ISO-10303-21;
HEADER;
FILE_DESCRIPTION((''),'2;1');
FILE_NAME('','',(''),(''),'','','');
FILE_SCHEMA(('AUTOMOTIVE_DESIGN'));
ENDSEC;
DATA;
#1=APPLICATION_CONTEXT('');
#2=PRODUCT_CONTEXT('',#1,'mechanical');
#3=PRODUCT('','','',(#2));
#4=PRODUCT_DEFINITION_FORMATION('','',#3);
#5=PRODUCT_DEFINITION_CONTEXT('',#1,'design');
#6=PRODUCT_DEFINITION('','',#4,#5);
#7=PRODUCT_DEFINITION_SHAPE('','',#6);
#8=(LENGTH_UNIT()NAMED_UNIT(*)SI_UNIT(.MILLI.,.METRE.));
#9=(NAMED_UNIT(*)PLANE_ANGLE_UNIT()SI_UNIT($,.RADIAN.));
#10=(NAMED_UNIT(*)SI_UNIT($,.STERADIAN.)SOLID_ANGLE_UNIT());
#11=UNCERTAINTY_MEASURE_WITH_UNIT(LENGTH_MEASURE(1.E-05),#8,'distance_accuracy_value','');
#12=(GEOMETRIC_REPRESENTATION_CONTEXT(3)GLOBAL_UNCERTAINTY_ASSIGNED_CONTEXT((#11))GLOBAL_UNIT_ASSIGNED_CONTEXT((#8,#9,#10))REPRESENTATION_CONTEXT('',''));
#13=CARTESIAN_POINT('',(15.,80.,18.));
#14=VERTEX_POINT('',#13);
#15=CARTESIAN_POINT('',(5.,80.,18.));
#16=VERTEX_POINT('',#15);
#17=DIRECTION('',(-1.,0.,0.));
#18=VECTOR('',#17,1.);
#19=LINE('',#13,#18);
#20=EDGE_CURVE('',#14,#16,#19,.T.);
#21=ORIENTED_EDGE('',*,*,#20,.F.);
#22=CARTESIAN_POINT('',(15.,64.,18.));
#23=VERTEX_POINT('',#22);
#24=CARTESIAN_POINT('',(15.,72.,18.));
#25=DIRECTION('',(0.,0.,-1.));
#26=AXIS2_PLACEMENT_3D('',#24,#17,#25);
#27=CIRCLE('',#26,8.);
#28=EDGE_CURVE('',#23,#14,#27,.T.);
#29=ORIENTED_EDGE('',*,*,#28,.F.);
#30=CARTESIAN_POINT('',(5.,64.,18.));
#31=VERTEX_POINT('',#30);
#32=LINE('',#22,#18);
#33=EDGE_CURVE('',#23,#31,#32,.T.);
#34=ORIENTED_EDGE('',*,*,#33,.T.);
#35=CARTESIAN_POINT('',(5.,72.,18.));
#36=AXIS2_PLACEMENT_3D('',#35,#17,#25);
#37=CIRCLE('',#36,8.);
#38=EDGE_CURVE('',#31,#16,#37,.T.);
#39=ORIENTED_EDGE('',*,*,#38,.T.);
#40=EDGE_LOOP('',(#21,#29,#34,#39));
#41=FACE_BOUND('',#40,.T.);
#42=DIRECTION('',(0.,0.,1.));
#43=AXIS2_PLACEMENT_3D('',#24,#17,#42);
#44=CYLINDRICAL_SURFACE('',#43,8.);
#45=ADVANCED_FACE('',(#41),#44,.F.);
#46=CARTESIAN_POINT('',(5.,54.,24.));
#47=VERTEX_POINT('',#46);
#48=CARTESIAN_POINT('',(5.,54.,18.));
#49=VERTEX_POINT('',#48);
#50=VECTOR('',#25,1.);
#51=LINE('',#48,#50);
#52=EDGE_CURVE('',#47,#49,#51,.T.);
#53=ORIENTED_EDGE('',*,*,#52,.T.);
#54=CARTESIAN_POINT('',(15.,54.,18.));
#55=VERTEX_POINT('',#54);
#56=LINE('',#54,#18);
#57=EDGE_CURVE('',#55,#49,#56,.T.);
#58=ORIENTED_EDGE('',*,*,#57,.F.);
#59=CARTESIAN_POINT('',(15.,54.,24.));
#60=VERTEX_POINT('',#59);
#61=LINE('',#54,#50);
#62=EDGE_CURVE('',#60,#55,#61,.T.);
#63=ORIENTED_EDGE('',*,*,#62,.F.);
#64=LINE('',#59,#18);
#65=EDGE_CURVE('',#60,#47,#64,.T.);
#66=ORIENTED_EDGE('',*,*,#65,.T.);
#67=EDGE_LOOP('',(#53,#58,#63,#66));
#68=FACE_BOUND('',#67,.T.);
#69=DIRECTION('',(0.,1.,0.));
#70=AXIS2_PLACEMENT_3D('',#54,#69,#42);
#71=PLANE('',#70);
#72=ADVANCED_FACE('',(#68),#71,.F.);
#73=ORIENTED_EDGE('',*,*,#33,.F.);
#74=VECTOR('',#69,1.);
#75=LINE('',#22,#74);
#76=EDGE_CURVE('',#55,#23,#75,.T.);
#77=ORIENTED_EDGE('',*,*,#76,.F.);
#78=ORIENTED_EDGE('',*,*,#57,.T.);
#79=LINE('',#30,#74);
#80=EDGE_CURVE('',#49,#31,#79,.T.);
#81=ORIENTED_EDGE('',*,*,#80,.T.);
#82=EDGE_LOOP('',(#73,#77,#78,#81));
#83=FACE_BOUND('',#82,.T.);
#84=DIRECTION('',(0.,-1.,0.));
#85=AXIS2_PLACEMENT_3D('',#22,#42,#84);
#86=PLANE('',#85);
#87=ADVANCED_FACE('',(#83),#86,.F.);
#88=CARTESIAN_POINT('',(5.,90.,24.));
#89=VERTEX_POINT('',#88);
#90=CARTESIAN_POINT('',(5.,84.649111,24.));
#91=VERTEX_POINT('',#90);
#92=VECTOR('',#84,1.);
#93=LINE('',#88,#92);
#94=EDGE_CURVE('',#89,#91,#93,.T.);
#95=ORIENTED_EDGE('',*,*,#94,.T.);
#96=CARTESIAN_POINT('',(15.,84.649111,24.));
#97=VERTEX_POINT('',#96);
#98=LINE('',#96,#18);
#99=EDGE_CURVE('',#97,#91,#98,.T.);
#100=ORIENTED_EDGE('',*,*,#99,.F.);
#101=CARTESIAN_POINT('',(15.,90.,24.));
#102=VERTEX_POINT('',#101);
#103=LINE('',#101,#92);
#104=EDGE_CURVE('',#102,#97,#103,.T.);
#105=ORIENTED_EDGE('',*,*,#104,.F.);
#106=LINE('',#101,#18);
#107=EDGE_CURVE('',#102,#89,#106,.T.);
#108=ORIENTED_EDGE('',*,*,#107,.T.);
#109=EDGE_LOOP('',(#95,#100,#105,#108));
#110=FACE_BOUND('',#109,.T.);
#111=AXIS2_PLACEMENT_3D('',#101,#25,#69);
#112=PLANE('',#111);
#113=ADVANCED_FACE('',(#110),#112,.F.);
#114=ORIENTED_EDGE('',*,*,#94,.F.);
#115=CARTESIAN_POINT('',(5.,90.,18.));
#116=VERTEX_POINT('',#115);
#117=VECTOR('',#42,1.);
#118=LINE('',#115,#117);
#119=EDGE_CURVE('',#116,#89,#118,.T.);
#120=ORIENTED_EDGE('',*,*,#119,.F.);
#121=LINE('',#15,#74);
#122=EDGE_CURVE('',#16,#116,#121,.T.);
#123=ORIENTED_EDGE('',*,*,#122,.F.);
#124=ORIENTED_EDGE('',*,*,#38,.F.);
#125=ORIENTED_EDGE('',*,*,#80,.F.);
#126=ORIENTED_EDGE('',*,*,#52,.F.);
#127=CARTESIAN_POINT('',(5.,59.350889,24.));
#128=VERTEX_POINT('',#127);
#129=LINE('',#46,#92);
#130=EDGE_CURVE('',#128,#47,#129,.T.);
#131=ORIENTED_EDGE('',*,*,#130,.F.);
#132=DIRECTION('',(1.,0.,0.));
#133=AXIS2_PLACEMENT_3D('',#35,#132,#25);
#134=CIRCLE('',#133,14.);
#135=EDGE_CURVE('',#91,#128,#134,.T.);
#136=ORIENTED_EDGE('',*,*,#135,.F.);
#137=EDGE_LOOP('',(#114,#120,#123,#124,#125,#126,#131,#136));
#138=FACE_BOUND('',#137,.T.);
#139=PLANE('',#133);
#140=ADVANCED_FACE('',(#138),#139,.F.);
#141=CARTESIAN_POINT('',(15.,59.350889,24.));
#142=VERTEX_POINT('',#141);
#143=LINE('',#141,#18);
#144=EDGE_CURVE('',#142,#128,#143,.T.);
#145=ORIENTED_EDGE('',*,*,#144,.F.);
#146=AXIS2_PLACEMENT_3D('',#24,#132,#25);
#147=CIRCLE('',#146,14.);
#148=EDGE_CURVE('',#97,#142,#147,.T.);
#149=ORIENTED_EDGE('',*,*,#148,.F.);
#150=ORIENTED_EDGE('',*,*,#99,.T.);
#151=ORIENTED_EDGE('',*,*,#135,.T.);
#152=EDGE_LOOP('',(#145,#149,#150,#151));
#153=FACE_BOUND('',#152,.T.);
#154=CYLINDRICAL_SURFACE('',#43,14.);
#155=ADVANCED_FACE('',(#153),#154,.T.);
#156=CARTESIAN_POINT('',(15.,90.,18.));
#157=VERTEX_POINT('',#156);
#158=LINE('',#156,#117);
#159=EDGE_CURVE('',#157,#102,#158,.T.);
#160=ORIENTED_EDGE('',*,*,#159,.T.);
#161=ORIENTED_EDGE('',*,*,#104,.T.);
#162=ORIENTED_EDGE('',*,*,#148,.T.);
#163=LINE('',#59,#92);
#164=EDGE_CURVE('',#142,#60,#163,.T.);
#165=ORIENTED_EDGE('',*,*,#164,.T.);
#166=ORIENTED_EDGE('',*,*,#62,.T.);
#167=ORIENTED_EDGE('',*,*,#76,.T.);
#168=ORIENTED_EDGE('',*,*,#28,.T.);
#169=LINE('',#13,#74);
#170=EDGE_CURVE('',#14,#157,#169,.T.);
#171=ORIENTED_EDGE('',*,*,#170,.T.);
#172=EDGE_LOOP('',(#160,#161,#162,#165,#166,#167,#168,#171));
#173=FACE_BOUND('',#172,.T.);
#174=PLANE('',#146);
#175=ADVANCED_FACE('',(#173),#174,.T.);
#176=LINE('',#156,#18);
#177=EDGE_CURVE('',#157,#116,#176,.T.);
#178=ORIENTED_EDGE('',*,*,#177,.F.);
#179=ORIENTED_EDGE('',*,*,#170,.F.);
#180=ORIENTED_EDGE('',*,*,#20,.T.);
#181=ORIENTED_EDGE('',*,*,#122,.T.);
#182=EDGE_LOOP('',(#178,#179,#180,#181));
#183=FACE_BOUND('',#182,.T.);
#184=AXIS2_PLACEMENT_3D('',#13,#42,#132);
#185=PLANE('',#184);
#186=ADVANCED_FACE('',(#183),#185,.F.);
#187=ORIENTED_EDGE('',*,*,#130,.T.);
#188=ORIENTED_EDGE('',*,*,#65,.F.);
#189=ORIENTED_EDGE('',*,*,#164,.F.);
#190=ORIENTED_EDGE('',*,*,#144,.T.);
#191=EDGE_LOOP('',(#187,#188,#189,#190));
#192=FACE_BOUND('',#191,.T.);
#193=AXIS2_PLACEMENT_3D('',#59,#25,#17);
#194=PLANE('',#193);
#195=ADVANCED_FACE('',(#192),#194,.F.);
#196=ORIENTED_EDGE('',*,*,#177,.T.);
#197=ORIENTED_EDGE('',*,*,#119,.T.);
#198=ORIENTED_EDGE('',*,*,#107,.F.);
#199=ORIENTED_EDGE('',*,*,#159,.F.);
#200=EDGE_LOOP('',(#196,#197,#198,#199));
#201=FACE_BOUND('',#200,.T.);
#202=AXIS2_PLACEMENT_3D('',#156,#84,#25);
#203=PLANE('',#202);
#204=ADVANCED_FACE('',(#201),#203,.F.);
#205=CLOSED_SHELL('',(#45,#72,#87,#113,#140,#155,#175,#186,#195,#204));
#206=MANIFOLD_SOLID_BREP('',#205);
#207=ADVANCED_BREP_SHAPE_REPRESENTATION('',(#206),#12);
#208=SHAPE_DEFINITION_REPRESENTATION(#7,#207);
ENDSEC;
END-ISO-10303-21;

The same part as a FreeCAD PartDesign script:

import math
import FreeCAD as App
import Part
import Sketcher

V = App.Vector

doc = App.newDocument("Part")
body = doc.addObject("PartDesign::Body", "Body")

sketch1 = doc.addObject("Sketcher::SketchObject", "Sketch")
body.addObject(sketch1)
sketch1.AttachmentSupport = (doc.YZ_Plane, [""])
sketch1.MapMode = "FlatFace"
sketch1.AttachmentOffset = App.Placement(V(0, 0, 10), App.Rotation())
sketch1.addGeometry(Part.LineSegment(V(80, 18, 0), V(90, 18, 0)), False)
sketch1.addGeometry(Part.LineSegment(V(90, 18, 0), V(90, 24, 0)), False)
sketch1.addGeometry(Part.LineSegment(V(90, 24, 0), V(85, 24, 0)), False)
sketch1.addGeometry(Part.ArcOfCircle(Part.Circle(V(72, 18, 0), V(0, 0, 1), 14), math.radians(25), math.radians(155)), False)
sketch1.addGeometry(Part.LineSegment(V(59, 24, 0), V(54, 24, 0)), False)
sketch1.addGeometry(Part.LineSegment(V(54, 24, 0), V(54, 18, 0)), False)
sketch1.addGeometry(Part.LineSegment(V(54, 18, 0), V(64, 18, 0)), False)
sketch1.addGeometry(Part.ArcOfCircle(Part.Circle(V(72, 18, 0), V(0, 0, 1), 8), math.radians(0), math.radians(180)), False)
sketch1.addConstraint(Sketcher.Constraint("Coincident", 0, 2, 1, 1))
sketch1.addConstraint(Sketcher.Constraint("Coincident", 1, 2, 2, 1))
sketch1.addConstraint(Sketcher.Constraint("Coincident", 2, 2, 3, 1))
sketch1.addConstraint(Sketcher.Constraint("Coincident", 3, 2, 4, 1))
sketch1.addConstraint(Sketcher.Constraint("Coincident", 4, 2, 5, 1))
sketch1.addConstraint(Sketcher.Constraint("Coincident", 5, 2, 6, 1))
sketch1.addConstraint(Sketcher.Constraint("Coincident", 6, 2, 7, 2))
sketch1.addConstraint(Sketcher.Constraint("Coincident", 7, 1, 0, 1))
sketch1.addConstraint(Sketcher.Constraint("Horizontal", 0))
sketch1.addConstraint(Sketcher.Constraint("Vertical", 1))
sketch1.addConstraint(Sketcher.Constraint("Horizontal", 2))
sketch1.addConstraint(Sketcher.Constraint("Horizontal", 4))
sketch1.addConstraint(Sketcher.Constraint("Vertical", 5))
sketch1.addConstraint(Sketcher.Constraint("Horizontal", 6))
sketch1.addConstraint(Sketcher.Constraint("Coincident", 7, 3, 3, 3))
sketch1.addConstraint(Sketcher.Constraint("Horizontal", 7, 3, 0, 2))
sketch1.addConstraint(Sketcher.Constraint("Horizontal", 2, 2, 3, 2))
sketch1.addConstraint(Sketcher.Constraint("Horizontal", 0, 2, 5, 2))
sketch1.addConstraint(Sketcher.Constraint("Equal", 2, 4))
sketch1.addConstraint(Sketcher.Constraint("Radius", 3, 14.0))
sketch1.addConstraint(Sketcher.Constraint("Radius", 7, 8.0))
sketch1.addConstraint(Sketcher.Constraint("DistanceX", 0, 1, 0, 2, 10.0))
sketch1.addConstraint(Sketcher.Constraint("DistanceY", 1, 1, 1, 2, 6.0))
sketch1.addConstraint(Sketcher.Constraint("DistanceX", -1, 1, 3, 3, 72.0))
sketch1.addConstraint(Sketcher.Constraint("DistanceY", -1, 1, 3, 3, 18.0))
pad1 = doc.addObject("PartDesign::Pad", "Pad")
body.addObject(pad1)
pad1.Profile = sketch1
pad1.Length = 10
pad1.Midplane = True

doc.recompute()
